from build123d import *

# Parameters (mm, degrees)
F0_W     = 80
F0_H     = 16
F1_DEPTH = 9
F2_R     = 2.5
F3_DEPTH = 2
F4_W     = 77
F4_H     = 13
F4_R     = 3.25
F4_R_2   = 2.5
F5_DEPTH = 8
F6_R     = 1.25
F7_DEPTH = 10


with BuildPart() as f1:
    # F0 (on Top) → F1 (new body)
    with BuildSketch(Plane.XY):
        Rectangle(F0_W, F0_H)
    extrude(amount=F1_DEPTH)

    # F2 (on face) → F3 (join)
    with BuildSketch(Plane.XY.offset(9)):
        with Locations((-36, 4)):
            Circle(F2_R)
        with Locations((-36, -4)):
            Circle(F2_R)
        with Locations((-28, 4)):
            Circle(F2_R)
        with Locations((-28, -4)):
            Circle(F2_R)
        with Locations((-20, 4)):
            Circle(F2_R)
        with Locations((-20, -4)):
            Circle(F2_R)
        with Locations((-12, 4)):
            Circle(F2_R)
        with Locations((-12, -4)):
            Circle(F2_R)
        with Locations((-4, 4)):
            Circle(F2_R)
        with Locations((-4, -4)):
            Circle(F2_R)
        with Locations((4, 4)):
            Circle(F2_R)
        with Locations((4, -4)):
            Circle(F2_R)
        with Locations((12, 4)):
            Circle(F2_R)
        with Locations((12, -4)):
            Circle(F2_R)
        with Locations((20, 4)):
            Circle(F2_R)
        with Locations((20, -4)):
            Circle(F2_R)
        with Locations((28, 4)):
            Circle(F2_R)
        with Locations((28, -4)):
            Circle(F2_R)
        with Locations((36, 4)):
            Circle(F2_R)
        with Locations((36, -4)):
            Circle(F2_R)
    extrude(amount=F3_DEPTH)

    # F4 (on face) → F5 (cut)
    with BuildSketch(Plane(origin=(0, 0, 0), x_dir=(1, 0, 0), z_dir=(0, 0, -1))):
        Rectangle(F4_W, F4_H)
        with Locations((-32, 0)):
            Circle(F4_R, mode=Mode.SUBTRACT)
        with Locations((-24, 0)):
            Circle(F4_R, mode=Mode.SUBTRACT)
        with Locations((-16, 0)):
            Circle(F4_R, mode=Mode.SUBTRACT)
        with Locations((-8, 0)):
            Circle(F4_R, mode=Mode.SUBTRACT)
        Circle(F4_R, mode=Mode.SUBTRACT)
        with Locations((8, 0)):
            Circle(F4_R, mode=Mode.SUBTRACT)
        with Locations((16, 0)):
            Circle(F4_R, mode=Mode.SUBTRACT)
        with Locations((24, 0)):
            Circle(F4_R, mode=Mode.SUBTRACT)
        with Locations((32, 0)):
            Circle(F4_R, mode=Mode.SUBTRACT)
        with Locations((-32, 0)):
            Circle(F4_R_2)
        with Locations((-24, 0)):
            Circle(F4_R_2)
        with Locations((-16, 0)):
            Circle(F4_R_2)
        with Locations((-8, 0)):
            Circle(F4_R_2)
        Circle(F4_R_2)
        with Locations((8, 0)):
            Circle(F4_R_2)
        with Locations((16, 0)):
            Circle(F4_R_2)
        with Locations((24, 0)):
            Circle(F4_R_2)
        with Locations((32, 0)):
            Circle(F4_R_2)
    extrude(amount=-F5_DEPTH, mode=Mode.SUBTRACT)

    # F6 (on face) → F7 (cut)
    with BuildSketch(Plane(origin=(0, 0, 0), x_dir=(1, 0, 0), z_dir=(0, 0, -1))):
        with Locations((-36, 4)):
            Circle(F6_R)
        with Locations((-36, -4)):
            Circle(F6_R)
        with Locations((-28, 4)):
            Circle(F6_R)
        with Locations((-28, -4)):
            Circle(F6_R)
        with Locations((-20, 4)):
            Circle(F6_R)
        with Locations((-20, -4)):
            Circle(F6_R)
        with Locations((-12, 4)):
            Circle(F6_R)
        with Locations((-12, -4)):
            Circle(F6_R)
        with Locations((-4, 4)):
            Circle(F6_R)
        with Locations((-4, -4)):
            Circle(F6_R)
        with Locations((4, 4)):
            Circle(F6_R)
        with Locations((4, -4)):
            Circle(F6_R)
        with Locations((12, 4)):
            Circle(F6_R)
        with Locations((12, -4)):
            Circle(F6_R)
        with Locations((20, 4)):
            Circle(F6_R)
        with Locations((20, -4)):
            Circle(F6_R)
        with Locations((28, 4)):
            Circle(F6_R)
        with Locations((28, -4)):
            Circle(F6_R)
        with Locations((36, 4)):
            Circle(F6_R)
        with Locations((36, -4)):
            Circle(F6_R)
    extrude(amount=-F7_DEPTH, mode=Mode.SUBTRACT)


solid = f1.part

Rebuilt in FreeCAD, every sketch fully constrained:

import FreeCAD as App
import Part
import Sketcher

V = App.Vector

doc = App.newDocument("Part")
body = doc.addObject("PartDesign::Body", "Body")

# Sketch on XY plane
sketch1 = body.newObject("Sketcher::SketchObject", "Sketch")
sketch1.AttachmentSupport = (doc.getObject("XY_Plane"), [""])
sketch1.MapMode = "FlatFace"
sketch1.addGeometry([
    Part.LineSegment(V(-40, 8, 0), V(-40, -8, 0)),
    Part.LineSegment(V(-40, -8, 0), V(40, -8, 0)),
    Part.LineSegment(V(40, -8, 0), V(40, 8, 0)),
    Part.LineSegment(V(40, 8, 0), V(-40, 8, 0)),
], False)
sketch1.addConstraint([
    Sketcher.Constraint("Coincident", 0, 2, 1, 1),
    Sketcher.Constraint("Coincident", 1, 2, 2, 1),
    Sketcher.Constraint("Coincident", 2, 2, 3, 1),
    Sketcher.Constraint("Coincident", 3, 2, 0, 1),
    Sketcher.Constraint("Vertical", 0),
    Sketcher.Constraint("Horizontal", 1),
    Sketcher.Constraint("Vertical", 2),
    Sketcher.Constraint("Horizontal", 3),
    Sketcher.Constraint("Symmetric", 0, 2, 2, 2, -1, 1),
    Sketcher.Constraint("DistanceX", 1, 1, 1, 2, 80.0),
    Sketcher.Constraint("DistanceY", 0, 2, 0, 1, 16.0),
])
pad1 = body.newObject("PartDesign::Pad", "Pad")
pad1.Profile = sketch1
pad1.Length = 9

# Sketch on XY plane
sketch2 = body.newObject("Sketcher::SketchObject", "Sketch001")
sketch2.AttachmentSupport = (doc.getObject("XY_Plane"), [""])
sketch2.MapMode = "FlatFace"
sketch2.AttachmentOffset = App.Placement(V(0, 0, 9), App.Rotation())
sketch2.addGeometry([
    Part.Circle(V(-36, 4, 0), V(0, 0, 1), 2.5),  # 0
    Part.Circle(V(-36, -4, 0), V(0, 0, 1), 2.5),  # 1
    Part.Circle(V(-28, 4, 0), V(0, 0, 1), 2.5),  # 2
    Part.Circle(V(-28, -4, 0), V(0, 0, 1), 2.5),  # 3
    Part.Circle(V(-20, 4, 0), V(0, 0, 1), 2.5),  # 4
    Part.Circle(V(-20, -4, 0), V(0, 0, 1), 2.5),  # 5
    Part.Circle(V(-12, 4, 0), V(0, 0, 1), 2.5),  # 6
    Part.Circle(V(-12, -4, 0), V(0, 0, 1), 2.5),  # 7
    Part.Circle(V(-4, 4, 0), V(0, 0, 1), 2.5),  # 8
    Part.Circle(V(-4, -4, 0), V(0, 0, 1), 2.5),  # 9
    Part.Circle(V(4, 4, 0), V(0, 0, 1), 2.5),  # 10
    Part.Circle(V(4, -4, 0), V(0, 0, 1), 2.5),  # 11
    Part.Circle(V(12, 4, 0), V(0, 0, 1), 2.5),  # 12
    Part.Circle(V(12, -4, 0), V(0, 0, 1), 2.5),  # 13
    Part.Circle(V(20, 4, 0), V(0, 0, 1), 2.5),  # 14
    Part.Circle(V(20, -4, 0), V(0, 0, 1), 2.5),  # 15
    Part.Circle(V(28, 4, 0), V(0, 0, 1), 2.5),  # 16
    Part.Circle(V(28, -4, 0), V(0, 0, 1), 2.5),  # 17
    Part.Circle(V(36, 4, 0), V(0, 0, 1), 2.5),  # 18
    Part.Circle(V(36, -4, 0), V(0, 0, 1), 2.5),  # 19
], False)
sketch2.addConstraint([
    Sketcher.Constraint("Equal", 0, 1),
    Sketcher.Constraint("Equal", 1, 2),
    Sketcher.Constraint("Equal", 2, 3),
    Sketcher.Constraint("Equal", 3, 4),
    Sketcher.Constraint("Equal", 4, 5),
    Sketcher.Constraint("Equal", 5, 6),
    Sketcher.Constraint("Equal", 6, 7),
    Sketcher.Constraint("Equal", 7, 8),
    Sketcher.Constraint("Equal", 8, 9),
    Sketcher.Constraint("Equal", 9, 10),
    Sketcher.Constraint("Equal", 10, 11),
    Sketcher.Constraint("Equal", 11, 12),
    Sketcher.Constraint("Equal", 12, 13),
    Sketcher.Constraint("Equal", 13, 14),
    Sketcher.Constraint("Equal", 14, 15),
    Sketcher.Constraint("Equal", 15, 16),
    Sketcher.Constraint("Equal", 16, 17),
    Sketcher.Constraint("Equal", 17, 18),
    Sketcher.Constraint("Equal", 18, 19),
    Sketcher.Constraint("Symmetric", 9, 3, 10, 3, -1, 1),
    Sketcher.Constraint("Symmetric", 8, 3, 11, 3, -1, 1),
    Sketcher.Constraint("Symmetric", 7, 3, 12, 3, -1, 1),
    Sketcher.Constraint("Symmetric", 6, 3, 13, 3, -1, 1),
    Sketcher.Constraint("Symmetric", 5, 3, 14, 3, -1, 1),
    Sketcher.Constraint("Symmetric", 4, 3, 15, 3, -1, 1),
    Sketcher.Constraint("Symmetric", 3, 3, 16, 3, -1, 1),
    Sketcher.Constraint("Symmetric", 2, 3, 17, 3, -1, 1),
    Sketcher.Constraint("Symmetric", 1, 3, 18, 3, -1, 1),
    Sketcher.Constraint("Symmetric", 0, 3, 19, 3, -1, 1),
    Sketcher.Constraint("Symmetric", 8, 3, 10, 3, -2),
    Sketcher.Constraint("Symmetric", 6, 3, 12, 3, -2),
    Sketcher.Constraint("Symmetric", 4, 3, 14, 3, -2),
    Sketcher.Constraint("Symmetric", 2, 3, 16, 3, -2),
    Sketcher.Constraint("Symmetric", 0, 3, 18, 3, -2),
    Sketcher.Constraint("Horizontal", 0, 3, 2, 3),
    Sketcher.Constraint("Horizontal", 2, 3, 4, 3),
    Sketcher.Constraint("Horizontal", 4, 3, 6, 3),
    Sketcher.Constraint("Horizontal", 6, 3, 8, 3),
    Sketcher.Constraint("Diameter", 0, 5.0),
    Sketcher.Constraint("DistanceX", 0, 3, -1, 1, 36.0),
    Sketcher.Constraint("DistanceY", -1, 1, 0, 3, 4.0),
    Sketcher.Constraint("DistanceX", 2, 3, -1, 1, 28.0),
    Sketcher.Constraint("DistanceX", 4, 3, -1, 1, 20.0),
    Sketcher.Constraint("DistanceX", 6, 3, -1, 1, 12.0),
    Sketcher.Constraint("DistanceX", 8, 3, -1, 1, 4.0),
])
pad2 = body.newObject("PartDesign::Pad", "Pad001")
pad2.Profile = sketch2
pad2.Length = 2

# Sketch on XY plane
sketch3 = body.newObject("Sketcher::SketchObject", "Sketch002")
sketch3.AttachmentSupport = (doc.getObject("XY_Plane"), [""])
sketch3.MapMode = "FlatFace"
sketch3.addGeometry([
    Part.LineSegment(V(-38.5, -6.5, 0), V(-38.5, 6.5, 0)),  # 0
    Part.LineSegment(V(-38.5, 6.5, 0), V(38.5, 6.5, 0)),  # 1
    Part.LineSegment(V(38.5, 6.5, 0), V(38.5, -6.5, 0)),  # 2
    Part.LineSegment(V(38.5, -6.5, 0), V(-38.5, -6.5, 0)),  # 3
    Part.Circle(V(-32, 0, 0), V(0, 0, 1), 3.25),  # 4
    Part.Circle(V(-24, 0, 0), V(0, 0, 1), 3.25),  # 5
    Part.Circle(V(-16, 0, 0), V(0, 0, 1), 3.25),  # 6
    Part.Circle(V(-8, 0, 0), V(0, 0, 1), 3.25),  # 7
    Part.Circle(V(0, 0, 0), V(0, 0, 1), 3.25),  # 8
    Part.Circle(V(8, 0, 0), V(0, 0, 1), 3.25),  # 9
    Part.Circle(V(16, 0, 0), V(0, 0, 1), 3.25),  # 10
    Part.Circle(V(24, 0, 0), V(0, 0, 1), 3.25),  # 11
    Part.Circle(V(32, 0, 0), V(0, 0, 1), 3.25),  # 12
    Part.Circle(V(-32, 0, 0), V(0, 0, 1), 2.5),  # 13
    Part.Circle(V(-24, 0, 0), V(0, 0, 1), 2.5),  # 14
    Part.Circle(V(-16, 0, 0), V(0, 0, 1), 2.5),  # 15
    Part.Circle(V(-8, 0, 0), V(0, 0, 1), 2.5),  # 16
    Part.Circle(V(0, 0, 0), V(0, 0, 1), 2.5),  # 17
    Part.Circle(V(8, 0, 0), V(0, 0, 1), 2.5),  # 18
    Part.Circle(V(16, 0, 0), V(0, 0, 1), 2.5),  # 19
    Part.Circle(V(24, 0, 0), V(0, 0, 1), 2.5),  # 20
    Part.Circle(V(32, 0, 0), V(0, 0, 1), 2.5),  # 21
], False)
sketch3.addConstraint([
    Sketcher.Constraint("Coincident", 0, 2, 1, 1),
    Sketcher.Constraint("Coincident", 1, 2, 2, 1),
    Sketcher.Constraint("Coincident", 2, 2, 3, 1),
    Sketcher.Constraint("Coincident", 3, 2, 0, 1),
    Sketcher.Constraint("Vertical", 0),
    Sketcher.Constraint("Horizontal", 1),
    Sketcher.Constraint("Vertical", 2),
    Sketcher.Constraint("Horizontal", 3),
    Sketcher.Constraint("Coincident", 8, 3, -1, 1),
    Sketcher.Constraint("Coincident", 17, 3, -1, 1),
    Sketcher.Constraint("Coincident", 13, 3, 4, 3),
    Sketcher.Constraint("Coincident", 14, 3, 5, 3),
    Sketcher.Constraint("Coincident", 15, 3, 6, 3),
    Sketcher.Constraint("Coincident", 16, 3, 7, 3),
    Sketcher.Constraint("Coincident", 18, 3, 9, 3),
    Sketcher.Constraint("Coincident", 19, 3, 10, 3),
    Sketcher.Constraint("Coincident", 20, 3, 11, 3),
    Sketcher.Constraint("Coincident", 21, 3, 12, 3),
    Sketcher.Constraint("Equal", 4, 5),
    Sketcher.Constraint("Equal", 5, 6),
    Sketcher.Constraint("Equal", 6, 7),
    Sketcher.Constraint("Equal", 7, 8),
    Sketcher.Constraint("Equal", 8, 9),
    Sketcher.Constraint("Equal", 9, 10),
    Sketcher.Constraint("Equal", 10, 11),
    Sketcher.Constraint("Equal", 11, 12),
    Sketcher.Constraint("Equal", 13, 14),
    Sketcher.Constraint("Equal", 14, 15),
    Sketcher.Constraint("Equal", 15, 16),
    Sketcher.Constraint("Equal", 16, 17),
    Sketcher.Constraint("Equal", 17, 18),
    Sketcher.Constraint("Equal", 18, 19),
    Sketcher.Constraint("Equal", 19, 20),
    Sketcher.Constraint("Equal", 20, 21),
    Sketcher.Constraint("Symmetric", 7, 3, 9, 3, -1, 1),
    Sketcher.Constraint("Symmetric", 6, 3, 10, 3, -1, 1),
    Sketcher.Constraint("Symmetric", 5, 3, 11, 3, -1, 1),
    Sketcher.Constraint("Symmetric", 4, 3, 12, 3, -1, 1),
    Sketcher.Constraint("Symmetric", 0, 2, 2, 2, -1, 1),
    Sketcher.Constraint("PointOnObject", 4, 3, -1),
    Sketcher.Constraint("PointOnObject", 5, 3, -1),
    Sketcher.Constraint("PointOnObject", 6, 3, -1),
    Sketcher.Constraint("PointOnObject", 7, 3, -1),
    Sketcher.Constraint("Diameter", 13, 5.0),
    Sketcher.Constraint("Diameter", 4, 6.5),
    Sketcher.Constraint("DistanceX", 1, 1, 1, 2, 77.0),
    Sketcher.Constraint("DistanceY", 0, 1, 0, 2, 13.0),
    Sketcher.Constraint("DistanceX", 4, 3, -1, 1, 32.0),
    Sketcher.Constraint("DistanceX", 5, 3, -1, 1, 24.0),
    Sketcher.Constraint("DistanceX", 6, 3, -1, 1, 16.0),
    Sketcher.Constraint("DistanceX", 7, 3, -1, 1, 8.0),
])
pocket1 = body.newObject("PartDesign::Pocket", "Pocket")
pocket1.Profile = sketch3
pocket1.Length = 8
pocket1.Reversed = True

# Sketch on XY plane
sketch4 = body.newObject("Sketcher::SketchObject", "Sketch003")
sketch4.AttachmentSupport = (doc.getObject("XY_Plane"), [""])
sketch4.MapMode = "FlatFace"
sketch4.addGeometry([
    Part.Circle(V(-36, -4, 0), V(0, 0, 1), 1.25),  # 0
    Part.Circle(V(-36, 4, 0), V(0, 0, 1), 1.25),  # 1
    Part.Circle(V(-28, -4, 0), V(0, 0, 1), 1.25),  # 2
    Part.Circle(V(-28, 4, 0), V(0, 0, 1), 1.25),  # 3
    Part.Circle(V(-20, -4, 0), V(0, 0, 1), 1.25),  # 4
    Part.Circle(V(-20, 4, 0), V(0, 0, 1), 1.25),  # 5
    Part.Circle(V(-12, -4, 0), V(0, 0, 1), 1.25),  # 6
    Part.Circle(V(-12, 4, 0), V(0, 0, 1), 1.25),  # 7
    Part.Circle(V(-4, -4, 0), V(0, 0, 1), 1.25),  # 8
    Part.Circle(V(-4, 4, 0), V(0, 0, 1), 1.25),  # 9
    Part.Circle(V(4, -4, 0), V(0, 0, 1), 1.25),  # 10
    Part.Circle(V(4, 4, 0), V(0, 0, 1), 1.25),  # 11
    Part.Circle(V(12, -4, 0), V(0, 0, 1), 1.25),  # 12
    Part.Circle(V(12, 4, 0), V(0, 0, 1), 1.25),  # 13
    Part.Circle(V(20, -4, 0), V(0, 0, 1), 1.25),  # 14
    Part.Circle(V(20, 4, 0), V(0, 0, 1), 1.25),  # 15
    Part.Circle(V(28, -4, 0), V(0, 0, 1), 1.25),  # 16
    Part.Circle(V(28, 4, 0), V(0, 0, 1), 1.25),  # 17
    Part.Circle(V(36, -4, 0), V(0, 0, 1), 1.25),  # 18
    Part.Circle(V(36, 4, 0), V(0, 0, 1), 1.25),  # 19
], False)
sketch4.addConstraint([
    Sketcher.Constraint("Equal", 0, 1),
    Sketcher.Constraint("Equal", 1, 2),
    Sketcher.Constraint("Equal", 2, 3),
    Sketcher.Constraint("Equal", 3, 4),
    Sketcher.Constraint("Equal", 4, 5),
    Sketcher.Constraint("Equal", 5, 6),
    Sketcher.Constraint("Equal", 6, 7),
    Sketcher.Constraint("Equal", 7, 8),
    Sketcher.Constraint("Equal", 8, 9),
    Sketcher.Constraint("Equal", 9, 10),
    Sketcher.Constraint("Equal", 10, 11),
    Sketcher.Constraint("Equal", 11, 12),
    Sketcher.Constraint("Equal", 12, 13),
    Sketcher.Constraint("Equal", 13, 14),
    Sketcher.Constraint("Equal", 14, 15),
    Sketcher.Constraint("Equal", 15, 16),
    Sketcher.Constraint("Equal", 16, 17),
    Sketcher.Constraint("Equal", 17, 18),
    Sketcher.Constraint("Equal", 18, 19),
    Sketcher.Constraint("Symmetric", 9, 3, 10, 3, -1, 1),
    Sketcher.Constraint("Symmetric", 8, 3, 11, 3, -1, 1),
    Sketcher.Constraint("Symmetric", 7, 3, 12, 3, -1, 1),
    Sketcher.Constraint("Symmetric", 6, 3, 13, 3, -1, 1),
    Sketcher.Constraint("Symmetric", 5, 3, 14, 3, -1, 1),
    Sketcher.Constraint("Symmetric", 4, 3, 15, 3, -1, 1),
    Sketcher.Constraint("Symmetric", 3, 3, 16, 3, -1, 1),
    Sketcher.Constraint("Symmetric", 2, 3, 17, 3, -1, 1),
    Sketcher.Constraint("Symmetric", 1, 3, 18, 3, -1, 1),
    Sketcher.Constraint("Symmetric", 0, 3, 19, 3, -1, 1),
    Sketcher.Constraint("Symmetric", 8, 3, 10, 3, -2),
    Sketcher.Constraint("Symmetric", 6, 3, 12, 3, -2),
    Sketcher.Constraint("Symmetric", 4, 3, 14, 3, -2),
    Sketcher.Constraint("Symmetric", 2, 3, 16, 3, -2),
    Sketcher.Constraint("Symmetric", 0, 3, 18, 3, -2),
    Sketcher.Constraint("Horizontal", 0, 3, 2, 3),
    Sketcher.Constraint("Horizontal", 2, 3, 4, 3),
    Sketcher.Constraint("Horizontal", 4, 3, 6, 3),
    Sketcher.Constraint("Horizontal", 6, 3, 8, 3),
    Sketcher.Constraint("Diameter", 0, 2.5),
    Sketcher.Constraint("DistanceX", 0, 3, -1, 1, 36.0),
    Sketcher.Constraint("DistanceY", 0, 3, -1, 1, 4.0),
    Sketcher.Constraint("DistanceX", 2, 3, -1, 1, 28.0),
    Sketcher.Constraint("DistanceX", 4, 3, -1, 1, 20.0),
    Sketcher.Constraint("DistanceX", 6, 3, -1, 1, 12.0),
    Sketcher.Constraint("DistanceX", 8, 3, -1, 1, 4.0),
])
pocket2 = body.newObject("PartDesign::Pocket", "Pocket001")
pocket2.Profile = sketch4
pocket2.Length = 10
pocket2.Reversed = True

doc.recompute()
